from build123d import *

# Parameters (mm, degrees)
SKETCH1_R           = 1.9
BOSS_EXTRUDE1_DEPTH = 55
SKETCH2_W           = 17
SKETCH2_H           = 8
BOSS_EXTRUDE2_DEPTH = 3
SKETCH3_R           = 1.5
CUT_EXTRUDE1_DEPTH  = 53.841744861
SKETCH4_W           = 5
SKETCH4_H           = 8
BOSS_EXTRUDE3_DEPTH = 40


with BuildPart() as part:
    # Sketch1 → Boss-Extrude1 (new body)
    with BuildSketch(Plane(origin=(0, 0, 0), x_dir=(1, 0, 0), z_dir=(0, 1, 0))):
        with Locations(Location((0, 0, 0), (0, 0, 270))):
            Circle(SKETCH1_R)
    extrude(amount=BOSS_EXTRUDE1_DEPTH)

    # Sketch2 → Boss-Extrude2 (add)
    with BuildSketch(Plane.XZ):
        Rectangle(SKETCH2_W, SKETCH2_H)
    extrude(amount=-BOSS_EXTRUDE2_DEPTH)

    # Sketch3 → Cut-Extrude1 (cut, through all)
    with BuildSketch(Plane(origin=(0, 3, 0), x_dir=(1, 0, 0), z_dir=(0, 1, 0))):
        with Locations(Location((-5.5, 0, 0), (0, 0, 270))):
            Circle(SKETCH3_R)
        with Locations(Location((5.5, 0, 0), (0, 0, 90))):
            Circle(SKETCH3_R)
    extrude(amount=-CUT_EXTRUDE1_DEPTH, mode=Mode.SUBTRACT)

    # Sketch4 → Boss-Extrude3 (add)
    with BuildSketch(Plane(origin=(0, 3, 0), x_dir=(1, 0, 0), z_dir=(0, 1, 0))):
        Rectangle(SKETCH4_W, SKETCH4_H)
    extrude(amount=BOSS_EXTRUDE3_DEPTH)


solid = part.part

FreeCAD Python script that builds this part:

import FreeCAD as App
import Part
import Sketcher

V = App.Vector

doc = App.newDocument("Part")
body = doc.addObject("PartDesign::Body", "Body")

# Sketch on XZ plane
sketch1 = body.newObject("Sketcher::SketchObject", "Sketch")
sketch1.AttachmentSupport = (doc.getObject("XZ_Plane"), [""])
sketch1.MapMode = "FlatFace"
sketch1.addGeometry(Part.Circle(V(0, 0, 0), V(0, 0, 1), 1.9), False)
sketch1.addConstraint(Sketcher.Constraint("Coincident", 0, 3, -1, 1))
sketch1.addConstraint(Sketcher.Constraint("Diameter", 0, 3.8))
pad1 = body.newObject("PartDesign::Pad", "Pad")
pad1.Profile = sketch1
pad1.Length = 55
pad1.Reversed = True

# Sketch on XZ plane
sketch2 = body.newObject("Sketcher::SketchObject", "Sketch001")
sketch2.AttachmentSupport = (doc.getObject("XZ_Plane"), [""])
sketch2.MapMode = "FlatFace"
sketch2.addGeometry(Part.LineSegment(V(-8, 4, 0), V(-8, -4, 0)), False)
sketch2.addGeometry(Part.LineSegment(V(-8, -4, 0), V(8, -4, 0)), False)
sketch2.addGeometry(Part.LineSegment(V(8, -4, 0), V(8, 4, 0)), False)
sketch2.addGeometry(Part.LineSegment(V(8, 4, 0), V(-8, 4, 0)), False)
sketch2.addConstraint(Sketcher.Constraint("Coincident", 0, 2, 1, 1))
sketch2.addConstraint(Sketcher.Constraint("Coincident", 1, 2, 2, 1))
sketch2.addConstraint(Sketcher.Constraint("Coincident", 2, 2, 3, 1))
sketch2.addConstraint(Sketcher.Constraint("Coincident", 3, 2, 0, 1))
sketch2.addConstraint(Sketcher.Constraint("Vertical", 0))
sketch2.addConstraint(Sketcher.Constraint("Horizontal", 1))
sketch2.addConstraint(Sketcher.Constraint("Vertical", 2))
sketch2.addConstraint(Sketcher.Constraint("Horizontal", 3))
sketch2.addConstraint(Sketcher.Constraint("Symmetric", 0, 2, 2, 2, -1, 1))
sketch2.addConstraint(Sketcher.Constraint("DistanceX", 1, 1, 1, 2, 17.0))
sketch2.addConstraint(Sketcher.Constraint("DistanceY", 0, 2, 0, 1, 8.0))
pad2 = body.newObject("PartDesign::Pad", "Pad001")
pad2.Profile = sketch2
pad2.Length = 3
pad2.Reversed = True

# Sketch on XZ plane
sketch3 = body.newObject("Sketcher::SketchObject", "Sketch002")
sketch3.AttachmentSupport = (doc.getObject("XZ_Plane"), [""])
sketch3.MapMode = "FlatFace"
sketch3.AttachmentOffset = App.Placement(V(0, 0, -3), App.Rotation())
sketch3.addGeometry(Part.Circle(V(-5.5, 0, 0), V(0, 0, 1), 1.5), False)
sketch3.addGeometry(Part.Circle(V(5.5, 0, 0), V(0, 0, 1), 1.5), False)
sketch3.addConstraint(Sketcher.Constraint("Equal", 0, 1))
sketch3.addConstraint(Sketcher.Constraint("Symmetric", 0, 3, 1, 3, -1, 1))
sketch3.addConstraint(Sketcher.Constraint("PointOnObject", 0, 3, -1))
sketch3.addConstraint(Sketcher.Constraint("Diameter", 0, 3.0))
sketch3.addConstraint(Sketcher.Constraint("DistanceX", 0, 3, 1, 3, 11.0))
pocket1 = body.newObject("PartDesign::Pocket", "Pocket")
pocket1.Profile = sketch3
pocket1.Type = "ThroughAll"
pocket1.Reversed = True

# Sketch on XZ plane
sketch4 = body.newObject("Sketcher::SketchObject", "Sketch003")
sketch4.AttachmentSupport = (doc.getObject("XZ_Plane"), [""])
sketch4.MapMode = "FlatFace"
sketch4.AttachmentOffset = App.Placement(V(0, 0, -3), App.Rotation())
sketch4.addGeometry(Part.LineSegment(V(-2, -4, 0), V(-2, 4, 0)), False)
sketch4.addGeometry(Part.LineSegment(V(-2, 4, 0), V(2, 4, 0)), False)
sketch4.addGeometry(Part.LineSegment(V(2, 4, 0), V(2, -4, 0)), False)
sketch4.addGeometry(Part.LineSegment(V(2, -4, 0), V(-2, -4, 0)), False)
sketch4.addConstraint(Sketcher.Constraint("Coincident", 0, 2, 1, 1))
sketch4.addConstraint(Sketcher.Constraint("Coincident", 1, 2, 2, 1))
sketch4.addConstraint(Sketcher.Constraint("Coincident", 2, 2, 3, 1))
sketch4.addConstraint(Sketcher.Constraint("Coincident", 3, 2, 0, 1))
sketch4.addConstraint(Sketcher.Constraint("Vertical", 0))
sketch4.addConstraint(Sketcher.Constraint("Horizontal", 1))
sketch4.addConstraint(Sketcher.Constraint("Vertical", 2))
sketch4.addConstraint(Sketcher.Constraint("Horizontal", 3))
sketch4.addConstraint(Sketcher.Constraint("Symmetric", 0, 2, 2, 2, -1, 1))
sketch4.addConstraint(Sketcher.Constraint("DistanceX", 1, 1, 1, 2, 5.0))
sketch4.addConstraint(Sketcher.Constraint("DistanceY", 0, 1, 0, 2, 8.0))
pad3 = body.newObject("PartDesign::Pad", "Pad002")
pad3.Profile = sketch4
pad3.Length = 40
pad3.Reversed = True

doc.recompute()
